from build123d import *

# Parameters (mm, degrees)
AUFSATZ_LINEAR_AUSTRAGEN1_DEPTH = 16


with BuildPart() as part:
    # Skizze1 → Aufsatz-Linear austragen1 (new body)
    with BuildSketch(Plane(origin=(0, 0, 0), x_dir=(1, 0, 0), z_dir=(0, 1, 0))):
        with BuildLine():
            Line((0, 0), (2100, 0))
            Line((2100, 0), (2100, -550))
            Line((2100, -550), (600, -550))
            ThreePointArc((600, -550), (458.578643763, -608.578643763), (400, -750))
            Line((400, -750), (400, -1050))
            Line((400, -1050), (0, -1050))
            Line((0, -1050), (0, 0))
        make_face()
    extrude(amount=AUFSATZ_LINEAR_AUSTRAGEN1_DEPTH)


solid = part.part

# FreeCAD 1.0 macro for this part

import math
import FreeCAD as App
import Part
import Sketcher

V = App.Vector
Q = App.Units.Quantity

doc = App.newDocument("Part")
body = doc.addObject("PartDesign::Body", "Body")

# Sketch on XZ plane
sketch1 = body.newObject("Sketcher::SketchObject", "Sketch")
sketch1.AttachmentSupport = (doc.getObject("XZ_Plane"), [""])
sketch1.MapMode = "FlatFace"
sketch1.addGeometry([
    Part.LineSegment(V(2100, 0, 0), V(0, 0, 0)),  # 0
    Part.LineSegment(V(0, 0, 0), V(0, 1050, 0)),  # 1
    Part.LineSegment(V(0, 1050, 0), V(400, 1050, 0)),  # 2
    Part.LineSegment(V(400, 1050, 0), V(400, 750, 0)),  # 3
    Part.ArcOfCircle(Part.Circle(V(600, 750, 0), V(0, 0, 1), 200), math.radians(-180), math.radians(-90)),  # 4
    Part.LineSegment(V(600, 550, 0), V(2100, 550, 0)),  # 5
    Part.LineSegment(V(2100, 550, 0), V(2100, 0, 0)),  # 6
], False)
sketch1.addConstraint([
    Sketcher.Constraint("Coincident", 0, 2, 1, 1),
    Sketcher.Constraint("Coincident", 1, 2, 2, 1),
    Sketcher.Constraint("Coincident", 2, 2, 3, 1),
    Sketcher.Constraint("Tangent", 3, 2, 4, 1),
    Sketcher.Constraint("Tangent", 4, 2, 5, 1),
    Sketcher.Constraint("Coincident", 5, 2, 6, 1),
    Sketcher.Constraint("Coincident", 6, 2, 0, 1),
    Sketcher.Constraint("Horizontal", 0),
    Sketcher.Constraint("Vertical", 1),
    Sketcher.Constraint("Horizontal", 2),
    Sketcher.Constraint("Vertical", 3),
    Sketcher.Constraint("Horizontal", 5),
    Sketcher.Constraint("Vertical", 6),
    Sketcher.Constraint("Coincident", 0, 2, -1, 1),
    Sketcher.Constraint("Radius", 4, Q("200 mm")),
    Sketcher.Constraint("DistanceX", 0, 2, 0, 1, Q("2100 mm")),
    Sketcher.Constraint("DistanceX", 2, 1, 2, 2, Q("400 mm")),
    Sketcher.Constraint("DistanceY", 1, 1, 1, 2, Q("1050 mm")),
    Sketcher.Constraint("DistanceY", 3, 2, 3, 1, Q("300 mm")),
])
pad1 = body.newObject("PartDesign::Pad", "Pad")
pad1.Profile = sketch1
pad1.Length = 16
pad1.Reversed = True

doc.recompute()
